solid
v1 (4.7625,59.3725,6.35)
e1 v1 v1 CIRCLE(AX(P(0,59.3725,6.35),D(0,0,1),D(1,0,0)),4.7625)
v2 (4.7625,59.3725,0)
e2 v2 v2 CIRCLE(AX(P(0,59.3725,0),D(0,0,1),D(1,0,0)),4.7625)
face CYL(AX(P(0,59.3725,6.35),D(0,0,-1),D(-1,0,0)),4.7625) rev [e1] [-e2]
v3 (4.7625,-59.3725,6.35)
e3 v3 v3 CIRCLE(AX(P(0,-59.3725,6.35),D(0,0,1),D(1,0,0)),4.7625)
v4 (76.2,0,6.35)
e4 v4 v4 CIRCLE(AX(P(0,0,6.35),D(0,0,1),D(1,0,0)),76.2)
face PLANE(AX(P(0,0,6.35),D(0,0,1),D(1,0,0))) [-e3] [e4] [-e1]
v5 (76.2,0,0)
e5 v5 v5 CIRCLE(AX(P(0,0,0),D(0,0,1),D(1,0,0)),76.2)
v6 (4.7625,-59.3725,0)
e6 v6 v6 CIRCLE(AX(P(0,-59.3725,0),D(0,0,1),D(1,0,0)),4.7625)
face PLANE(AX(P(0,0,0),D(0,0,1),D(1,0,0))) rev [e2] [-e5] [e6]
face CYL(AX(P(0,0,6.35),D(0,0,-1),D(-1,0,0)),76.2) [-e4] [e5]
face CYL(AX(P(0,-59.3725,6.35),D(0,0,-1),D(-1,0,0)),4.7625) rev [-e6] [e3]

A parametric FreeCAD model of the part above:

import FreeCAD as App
import Part
import Sketcher

V = App.Vector
Q = App.Units.Quantity

doc = App.newDocument("Part")
body = doc.addObject("PartDesign::Body", "Body")

# Sketch on XY plane
sketch1 = doc.addObject("Sketcher::SketchObject", "Sketch")
body.addObject(sketch1)
sketch1.AttachmentSupport = (doc.XY_Plane, [""])
sketch1.MapMode = "FlatFace"
sketch1.addGeometry(Part.Circle(V(0, 0, 0), V(0, 0, 1), 76.2), False)
sketch1.addGeometry(Part.Circle(V(0, -59.4, 0), V(0, 0, 1), 4.8), False)
sketch1.addGeometry(Part.Circle(V(0, 59.4, 0), V(0, 0, 1), 4.8), False)
sketch1.addConstraint(Sketcher.Constraint("Coincident", 0, 3, -1, 1))
sketch1.addConstraint(Sketcher.Constraint("Equal", 1, 2))
sketch1.addConstraint(Sketcher.Constraint("Symmetric", 1, 3, 2, 3, -1, 1))
sketch1.addConstraint(Sketcher.Constraint("PointOnObject", 1, 3, -2))
sketch1.addConstraint(Sketcher.Constraint("Diameter", 0, Q("6 in")))
sketch1.addConstraint(Sketcher.Constraint("Diameter", 1, Q("0.375 in")))
sketch1.addConstraint(Sketcher.Constraint("DistanceY", 1, 3, 2, 3, Q("4.675 in")))
pad1 = doc.addObject("PartDesign::Pad", "Pad")
body.addObject(pad1)
pad1.Profile = sketch1
pad1.Length = Q("0.25 in")

doc.recompute()
